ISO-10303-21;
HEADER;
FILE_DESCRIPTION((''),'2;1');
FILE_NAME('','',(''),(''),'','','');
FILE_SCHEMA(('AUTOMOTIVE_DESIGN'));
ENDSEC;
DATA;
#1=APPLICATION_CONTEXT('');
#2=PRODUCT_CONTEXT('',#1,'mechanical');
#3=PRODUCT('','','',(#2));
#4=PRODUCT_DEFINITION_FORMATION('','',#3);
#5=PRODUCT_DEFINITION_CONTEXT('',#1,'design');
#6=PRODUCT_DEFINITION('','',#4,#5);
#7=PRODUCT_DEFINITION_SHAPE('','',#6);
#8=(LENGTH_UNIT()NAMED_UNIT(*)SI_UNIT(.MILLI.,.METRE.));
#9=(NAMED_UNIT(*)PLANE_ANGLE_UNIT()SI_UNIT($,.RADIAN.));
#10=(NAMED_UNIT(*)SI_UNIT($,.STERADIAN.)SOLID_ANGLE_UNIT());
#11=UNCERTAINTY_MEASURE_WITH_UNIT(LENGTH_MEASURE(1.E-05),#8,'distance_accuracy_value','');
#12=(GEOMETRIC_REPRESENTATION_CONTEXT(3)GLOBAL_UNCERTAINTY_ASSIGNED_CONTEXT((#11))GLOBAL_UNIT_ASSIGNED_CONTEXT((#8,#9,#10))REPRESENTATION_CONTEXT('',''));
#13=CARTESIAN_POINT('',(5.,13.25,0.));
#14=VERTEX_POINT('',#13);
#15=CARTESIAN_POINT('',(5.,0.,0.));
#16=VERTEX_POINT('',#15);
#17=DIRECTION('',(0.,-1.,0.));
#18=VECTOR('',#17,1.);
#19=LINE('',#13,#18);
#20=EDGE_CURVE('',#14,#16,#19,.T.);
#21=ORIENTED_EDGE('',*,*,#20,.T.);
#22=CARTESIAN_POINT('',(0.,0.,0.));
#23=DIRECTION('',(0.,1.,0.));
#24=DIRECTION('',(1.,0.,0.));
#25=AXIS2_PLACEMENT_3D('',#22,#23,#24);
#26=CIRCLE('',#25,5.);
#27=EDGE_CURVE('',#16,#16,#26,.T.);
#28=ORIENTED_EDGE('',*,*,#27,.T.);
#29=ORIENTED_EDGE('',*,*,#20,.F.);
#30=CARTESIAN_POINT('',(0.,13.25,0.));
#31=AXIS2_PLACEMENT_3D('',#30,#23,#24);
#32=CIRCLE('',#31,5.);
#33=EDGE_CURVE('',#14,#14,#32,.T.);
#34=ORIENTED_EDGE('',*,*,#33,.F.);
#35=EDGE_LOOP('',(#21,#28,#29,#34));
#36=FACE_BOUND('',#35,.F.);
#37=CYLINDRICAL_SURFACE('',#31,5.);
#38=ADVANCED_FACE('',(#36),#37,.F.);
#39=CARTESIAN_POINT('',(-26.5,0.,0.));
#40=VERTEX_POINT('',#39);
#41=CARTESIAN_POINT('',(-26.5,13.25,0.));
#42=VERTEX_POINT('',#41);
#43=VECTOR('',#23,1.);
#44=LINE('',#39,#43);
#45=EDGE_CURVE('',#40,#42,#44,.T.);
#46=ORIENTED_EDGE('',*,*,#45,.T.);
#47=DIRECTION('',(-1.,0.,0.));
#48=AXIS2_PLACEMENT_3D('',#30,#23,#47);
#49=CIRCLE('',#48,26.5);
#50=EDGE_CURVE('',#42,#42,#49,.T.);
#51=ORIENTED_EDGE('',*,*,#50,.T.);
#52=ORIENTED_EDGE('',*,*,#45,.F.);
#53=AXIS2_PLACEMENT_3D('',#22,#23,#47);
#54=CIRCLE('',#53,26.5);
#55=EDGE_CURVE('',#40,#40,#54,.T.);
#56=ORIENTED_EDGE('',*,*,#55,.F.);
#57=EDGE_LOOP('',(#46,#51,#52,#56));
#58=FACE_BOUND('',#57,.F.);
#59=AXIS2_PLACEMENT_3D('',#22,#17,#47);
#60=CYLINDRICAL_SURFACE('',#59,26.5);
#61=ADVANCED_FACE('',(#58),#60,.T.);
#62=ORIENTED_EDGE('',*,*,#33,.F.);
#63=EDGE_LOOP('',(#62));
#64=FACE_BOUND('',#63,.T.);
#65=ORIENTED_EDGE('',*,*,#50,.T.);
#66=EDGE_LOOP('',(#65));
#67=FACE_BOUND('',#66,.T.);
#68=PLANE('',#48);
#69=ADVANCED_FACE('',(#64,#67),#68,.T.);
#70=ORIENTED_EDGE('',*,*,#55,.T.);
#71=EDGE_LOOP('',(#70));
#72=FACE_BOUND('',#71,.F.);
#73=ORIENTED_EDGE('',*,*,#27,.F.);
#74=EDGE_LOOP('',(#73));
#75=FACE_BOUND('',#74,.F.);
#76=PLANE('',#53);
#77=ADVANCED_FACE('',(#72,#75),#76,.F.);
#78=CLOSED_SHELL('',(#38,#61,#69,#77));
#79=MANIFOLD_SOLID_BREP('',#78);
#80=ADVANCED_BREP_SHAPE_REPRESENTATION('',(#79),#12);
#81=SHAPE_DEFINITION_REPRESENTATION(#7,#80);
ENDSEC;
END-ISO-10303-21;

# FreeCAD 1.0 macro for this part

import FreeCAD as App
import Part
import Sketcher
from FreeCAD import Vector
Q = App.Units.Quantity

doc = App.newDocument("Part")
body = doc.addObject("PartDesign::Body", "Body")

# Sketch on XZ plane
sketch1 = body.newObject("Sketcher::SketchObject", "Sketch")
sketch1.AttachmentSupport = (doc.getObject("XZ_Plane"), [""])
sketch1.MapMode = "FlatFace"
sketch1.addGeometry(Part.Circle(Vector(0, 0, 0), Vector(0, 0, 1), 26), False)
sketch1.addConstraint(Sketcher.Constraint("Coincident", 0, 3, -1, 1))
sketch1.addConstraint(Sketcher.Constraint("Diameter", 0, Q("53 mm")))
pad1 = body.newObject("PartDesign::Pad", "Pad")
pad1.Profile = sketch1
pad1.Length = 13.25
pad1.Reversed = True

# Sketch on XZ plane
sketch2 = body.newObject("Sketcher::SketchObject", "Sketch001")
sketch2.AttachmentSupport = (doc.getObject("XZ_Plane"), [""])
sketch2.MapMode = "FlatFace"
sketch2.AttachmentOffset = App.Placement(Vector(0, 0, -13.25), App.Rotation())
sketch2.addGeometry(Part.Circle(Vector(0, 0, 0), Vector(0, 0, 1), 5), False)
sketch2.addConstraint(Sketcher.Constraint("Coincident", 0, 3, -1, 1))
sketch2.addConstraint(Sketcher.Constraint("Diameter", 0, Q("10 mm")))
pocket1 = body.newObject("PartDesign::Pocket", "Pocket")
pocket1.Profile = sketch2
pocket1.Type = "ThroughAll"
pocket1.Reversed = True

doc.recompute()
